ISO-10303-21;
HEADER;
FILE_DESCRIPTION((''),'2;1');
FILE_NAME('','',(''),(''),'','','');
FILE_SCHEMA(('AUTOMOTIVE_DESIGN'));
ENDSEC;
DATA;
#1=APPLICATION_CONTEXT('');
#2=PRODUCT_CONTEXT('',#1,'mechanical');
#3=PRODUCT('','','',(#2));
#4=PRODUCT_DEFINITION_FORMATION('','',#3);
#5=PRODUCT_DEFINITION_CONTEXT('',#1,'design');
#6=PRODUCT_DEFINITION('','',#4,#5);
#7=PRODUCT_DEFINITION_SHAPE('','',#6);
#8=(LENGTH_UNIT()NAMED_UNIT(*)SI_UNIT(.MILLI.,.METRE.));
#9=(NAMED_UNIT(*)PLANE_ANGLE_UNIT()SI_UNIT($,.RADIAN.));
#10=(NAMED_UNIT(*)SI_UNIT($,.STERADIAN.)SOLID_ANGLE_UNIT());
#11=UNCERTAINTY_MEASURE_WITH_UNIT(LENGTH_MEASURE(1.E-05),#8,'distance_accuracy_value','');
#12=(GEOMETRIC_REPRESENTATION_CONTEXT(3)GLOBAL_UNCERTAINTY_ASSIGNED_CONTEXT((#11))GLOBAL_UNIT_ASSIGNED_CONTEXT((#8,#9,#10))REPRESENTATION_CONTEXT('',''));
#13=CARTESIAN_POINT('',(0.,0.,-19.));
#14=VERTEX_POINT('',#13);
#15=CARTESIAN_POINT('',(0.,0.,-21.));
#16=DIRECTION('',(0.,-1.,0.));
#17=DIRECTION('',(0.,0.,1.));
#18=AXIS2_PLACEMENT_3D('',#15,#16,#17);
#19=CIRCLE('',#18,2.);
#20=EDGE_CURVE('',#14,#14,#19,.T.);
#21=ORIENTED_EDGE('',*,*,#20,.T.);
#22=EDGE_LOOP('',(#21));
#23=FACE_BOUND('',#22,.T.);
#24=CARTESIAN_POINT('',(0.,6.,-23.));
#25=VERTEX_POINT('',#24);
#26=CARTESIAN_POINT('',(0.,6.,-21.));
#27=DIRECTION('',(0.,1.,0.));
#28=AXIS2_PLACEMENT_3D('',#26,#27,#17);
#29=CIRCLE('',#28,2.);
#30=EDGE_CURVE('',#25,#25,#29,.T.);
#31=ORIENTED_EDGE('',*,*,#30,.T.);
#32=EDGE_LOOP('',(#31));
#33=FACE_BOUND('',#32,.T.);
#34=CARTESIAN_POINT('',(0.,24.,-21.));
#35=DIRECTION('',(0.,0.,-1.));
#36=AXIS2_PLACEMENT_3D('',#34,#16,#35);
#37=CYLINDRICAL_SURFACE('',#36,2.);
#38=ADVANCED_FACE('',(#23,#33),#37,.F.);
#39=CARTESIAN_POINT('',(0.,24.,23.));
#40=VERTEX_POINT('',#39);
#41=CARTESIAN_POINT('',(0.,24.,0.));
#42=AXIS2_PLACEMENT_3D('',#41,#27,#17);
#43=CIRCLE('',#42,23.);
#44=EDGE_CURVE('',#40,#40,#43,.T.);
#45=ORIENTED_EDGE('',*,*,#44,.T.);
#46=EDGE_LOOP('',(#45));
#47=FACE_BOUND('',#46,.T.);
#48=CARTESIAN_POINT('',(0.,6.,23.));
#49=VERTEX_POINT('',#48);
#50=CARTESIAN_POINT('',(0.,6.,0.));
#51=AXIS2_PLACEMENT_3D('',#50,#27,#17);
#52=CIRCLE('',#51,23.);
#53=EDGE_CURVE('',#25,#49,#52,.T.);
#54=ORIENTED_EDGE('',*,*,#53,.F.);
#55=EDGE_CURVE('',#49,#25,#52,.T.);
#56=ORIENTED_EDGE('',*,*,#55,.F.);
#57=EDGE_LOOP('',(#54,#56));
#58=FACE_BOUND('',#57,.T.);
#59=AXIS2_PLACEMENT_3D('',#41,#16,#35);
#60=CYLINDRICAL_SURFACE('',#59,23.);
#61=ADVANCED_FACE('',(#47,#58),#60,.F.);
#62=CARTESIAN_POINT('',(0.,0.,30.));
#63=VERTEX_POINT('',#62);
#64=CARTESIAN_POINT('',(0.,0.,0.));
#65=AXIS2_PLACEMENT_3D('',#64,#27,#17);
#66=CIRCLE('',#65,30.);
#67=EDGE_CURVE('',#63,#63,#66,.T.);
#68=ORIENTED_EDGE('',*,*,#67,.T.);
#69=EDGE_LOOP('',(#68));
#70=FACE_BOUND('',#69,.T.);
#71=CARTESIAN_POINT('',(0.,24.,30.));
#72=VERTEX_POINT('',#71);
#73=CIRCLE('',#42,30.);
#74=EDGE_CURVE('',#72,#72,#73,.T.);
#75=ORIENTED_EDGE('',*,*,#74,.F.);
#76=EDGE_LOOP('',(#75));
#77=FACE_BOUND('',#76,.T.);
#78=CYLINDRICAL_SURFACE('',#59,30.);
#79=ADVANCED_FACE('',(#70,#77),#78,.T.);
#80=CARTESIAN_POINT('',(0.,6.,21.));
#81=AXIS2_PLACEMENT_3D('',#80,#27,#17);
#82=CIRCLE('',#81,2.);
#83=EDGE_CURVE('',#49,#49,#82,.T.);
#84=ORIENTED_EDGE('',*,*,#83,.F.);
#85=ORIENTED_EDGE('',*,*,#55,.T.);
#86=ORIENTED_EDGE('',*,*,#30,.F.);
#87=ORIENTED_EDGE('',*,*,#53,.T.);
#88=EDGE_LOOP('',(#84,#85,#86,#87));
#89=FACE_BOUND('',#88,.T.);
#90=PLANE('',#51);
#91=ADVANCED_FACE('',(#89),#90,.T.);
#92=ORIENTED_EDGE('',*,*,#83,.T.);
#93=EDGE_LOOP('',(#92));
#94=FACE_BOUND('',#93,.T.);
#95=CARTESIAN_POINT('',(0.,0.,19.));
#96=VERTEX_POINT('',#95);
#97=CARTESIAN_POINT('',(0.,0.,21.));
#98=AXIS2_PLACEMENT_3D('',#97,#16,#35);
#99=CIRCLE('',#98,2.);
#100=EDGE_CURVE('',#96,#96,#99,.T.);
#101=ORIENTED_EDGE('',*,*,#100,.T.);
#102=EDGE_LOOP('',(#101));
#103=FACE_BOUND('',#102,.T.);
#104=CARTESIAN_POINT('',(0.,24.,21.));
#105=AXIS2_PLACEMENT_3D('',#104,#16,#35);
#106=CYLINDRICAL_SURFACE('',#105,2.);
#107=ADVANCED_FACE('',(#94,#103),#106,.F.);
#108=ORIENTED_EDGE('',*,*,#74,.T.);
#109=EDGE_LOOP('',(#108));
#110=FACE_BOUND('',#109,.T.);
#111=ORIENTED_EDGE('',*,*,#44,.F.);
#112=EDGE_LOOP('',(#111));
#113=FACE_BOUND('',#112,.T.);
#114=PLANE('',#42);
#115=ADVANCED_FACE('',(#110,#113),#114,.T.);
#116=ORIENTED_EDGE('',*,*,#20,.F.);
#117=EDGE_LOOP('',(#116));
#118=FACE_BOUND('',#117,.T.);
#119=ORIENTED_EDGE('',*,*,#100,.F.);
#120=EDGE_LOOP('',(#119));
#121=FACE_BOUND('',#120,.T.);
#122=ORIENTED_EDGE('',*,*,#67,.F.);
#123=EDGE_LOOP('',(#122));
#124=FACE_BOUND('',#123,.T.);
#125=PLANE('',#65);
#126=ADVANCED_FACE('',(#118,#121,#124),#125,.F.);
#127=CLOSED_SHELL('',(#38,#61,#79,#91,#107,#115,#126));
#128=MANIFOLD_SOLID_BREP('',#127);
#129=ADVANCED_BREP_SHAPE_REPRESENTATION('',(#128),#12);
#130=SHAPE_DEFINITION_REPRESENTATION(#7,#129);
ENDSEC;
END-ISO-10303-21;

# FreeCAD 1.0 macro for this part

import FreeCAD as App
import Part
import Sketcher

doc = App.newDocument("Part")
body = doc.addObject("PartDesign::Body", "Body")

# Sketch on XZ plane
sketch1 = doc.addObject("Sketcher::SketchObject", "Sketch")
body.addObject(sketch1)
sketch1.AttachmentSupport = (doc.XZ_Plane, [""])
sketch1.MapMode = "FlatFace"
sketch1.addGeometry(Part.Circle(App.Vector(0, 0, 0), App.Vector(0, 0, 1), 30), False)
sketch1.addGeometry(Part.Circle(App.Vector(0, 0, 0), App.Vector(0, 0, 1), 23), False)
sketch1.addConstraint(Sketcher.Constraint("Coincident", 0, 3, -1, 1))
sketch1.addConstraint(Sketcher.Constraint("Coincident", 1, 3, -1, 1))
sketch1.addConstraint(Sketcher.Constraint("Diameter", 0, 60.0))
sketch1.addConstraint(Sketcher.Constraint("Diameter", 1, 46.0))
pad1 = doc.addObject("PartDesign::Pad", "Pad")
body.addObject(pad1)
pad1.Profile = sketch1
pad1.Length = 24
pad1.Reversed = True

# Sketch on XZ plane
sketch2 = doc.addObject("Sketcher::SketchObject", "Sketch001")
body.addObject(sketch2)
sketch2.AttachmentSupport = (doc.XZ_Plane, [""])
sketch2.MapMode = "FlatFace"
sketch2.addGeometry(Part.Circle(App.Vector(0, 0, 0), App.Vector(0, 0, 1), 23), False)
sketch2.addConstraint(Sketcher.Constraint("Coincident", 0, 3, -1, 1))
sketch2.addConstraint(Sketcher.Constraint("Diameter", 0, 46.0))
pad2 = doc.addObject("PartDesign::Pad", "Pad001")
body.addObject(pad2)
pad2.Profile = sketch2
pad2.Length = 6
pad2.Reversed = True

# Sketch on XZ plane
sketch3 = doc.addObject("Sketcher::SketchObject", "Sketch002")
body.addObject(sketch3)
sketch3.AttachmentSupport = (doc.XZ_Plane, [""])
sketch3.MapMode = "FlatFace"
sketch3.addGeometry(Part.Circle(App.Vector(0, 21, 0), App.Vector(0, 0, 1), 2), False)
sketch3.addGeometry(Part.Circle(App.Vector(0, -21, 0), App.Vector(0, 0, 1), 2), False)
sketch3.addConstraint(Sketcher.Constraint("Equal", 0, 1))
sketch3.addConstraint(Sketcher.Constraint("Symmetric", 0, 3, 1, 3, -1, 1))
sketch3.addConstraint(Sketcher.Constraint("PointOnObject", 0, 3, -2))
sketch3.addConstraint(Sketcher.Constraint("Diameter", 0, 4.0))
sketch3.addConstraint(Sketcher.Constraint("DistanceY", -1, 1, 0, 3, 21.0))
pocket1 = doc.addObject("PartDesign::Pocket", "Pocket")
body.addObject(pocket1)
pocket1.Profile = sketch3
pocket1.Type = "ThroughAll"

doc.recompute()
